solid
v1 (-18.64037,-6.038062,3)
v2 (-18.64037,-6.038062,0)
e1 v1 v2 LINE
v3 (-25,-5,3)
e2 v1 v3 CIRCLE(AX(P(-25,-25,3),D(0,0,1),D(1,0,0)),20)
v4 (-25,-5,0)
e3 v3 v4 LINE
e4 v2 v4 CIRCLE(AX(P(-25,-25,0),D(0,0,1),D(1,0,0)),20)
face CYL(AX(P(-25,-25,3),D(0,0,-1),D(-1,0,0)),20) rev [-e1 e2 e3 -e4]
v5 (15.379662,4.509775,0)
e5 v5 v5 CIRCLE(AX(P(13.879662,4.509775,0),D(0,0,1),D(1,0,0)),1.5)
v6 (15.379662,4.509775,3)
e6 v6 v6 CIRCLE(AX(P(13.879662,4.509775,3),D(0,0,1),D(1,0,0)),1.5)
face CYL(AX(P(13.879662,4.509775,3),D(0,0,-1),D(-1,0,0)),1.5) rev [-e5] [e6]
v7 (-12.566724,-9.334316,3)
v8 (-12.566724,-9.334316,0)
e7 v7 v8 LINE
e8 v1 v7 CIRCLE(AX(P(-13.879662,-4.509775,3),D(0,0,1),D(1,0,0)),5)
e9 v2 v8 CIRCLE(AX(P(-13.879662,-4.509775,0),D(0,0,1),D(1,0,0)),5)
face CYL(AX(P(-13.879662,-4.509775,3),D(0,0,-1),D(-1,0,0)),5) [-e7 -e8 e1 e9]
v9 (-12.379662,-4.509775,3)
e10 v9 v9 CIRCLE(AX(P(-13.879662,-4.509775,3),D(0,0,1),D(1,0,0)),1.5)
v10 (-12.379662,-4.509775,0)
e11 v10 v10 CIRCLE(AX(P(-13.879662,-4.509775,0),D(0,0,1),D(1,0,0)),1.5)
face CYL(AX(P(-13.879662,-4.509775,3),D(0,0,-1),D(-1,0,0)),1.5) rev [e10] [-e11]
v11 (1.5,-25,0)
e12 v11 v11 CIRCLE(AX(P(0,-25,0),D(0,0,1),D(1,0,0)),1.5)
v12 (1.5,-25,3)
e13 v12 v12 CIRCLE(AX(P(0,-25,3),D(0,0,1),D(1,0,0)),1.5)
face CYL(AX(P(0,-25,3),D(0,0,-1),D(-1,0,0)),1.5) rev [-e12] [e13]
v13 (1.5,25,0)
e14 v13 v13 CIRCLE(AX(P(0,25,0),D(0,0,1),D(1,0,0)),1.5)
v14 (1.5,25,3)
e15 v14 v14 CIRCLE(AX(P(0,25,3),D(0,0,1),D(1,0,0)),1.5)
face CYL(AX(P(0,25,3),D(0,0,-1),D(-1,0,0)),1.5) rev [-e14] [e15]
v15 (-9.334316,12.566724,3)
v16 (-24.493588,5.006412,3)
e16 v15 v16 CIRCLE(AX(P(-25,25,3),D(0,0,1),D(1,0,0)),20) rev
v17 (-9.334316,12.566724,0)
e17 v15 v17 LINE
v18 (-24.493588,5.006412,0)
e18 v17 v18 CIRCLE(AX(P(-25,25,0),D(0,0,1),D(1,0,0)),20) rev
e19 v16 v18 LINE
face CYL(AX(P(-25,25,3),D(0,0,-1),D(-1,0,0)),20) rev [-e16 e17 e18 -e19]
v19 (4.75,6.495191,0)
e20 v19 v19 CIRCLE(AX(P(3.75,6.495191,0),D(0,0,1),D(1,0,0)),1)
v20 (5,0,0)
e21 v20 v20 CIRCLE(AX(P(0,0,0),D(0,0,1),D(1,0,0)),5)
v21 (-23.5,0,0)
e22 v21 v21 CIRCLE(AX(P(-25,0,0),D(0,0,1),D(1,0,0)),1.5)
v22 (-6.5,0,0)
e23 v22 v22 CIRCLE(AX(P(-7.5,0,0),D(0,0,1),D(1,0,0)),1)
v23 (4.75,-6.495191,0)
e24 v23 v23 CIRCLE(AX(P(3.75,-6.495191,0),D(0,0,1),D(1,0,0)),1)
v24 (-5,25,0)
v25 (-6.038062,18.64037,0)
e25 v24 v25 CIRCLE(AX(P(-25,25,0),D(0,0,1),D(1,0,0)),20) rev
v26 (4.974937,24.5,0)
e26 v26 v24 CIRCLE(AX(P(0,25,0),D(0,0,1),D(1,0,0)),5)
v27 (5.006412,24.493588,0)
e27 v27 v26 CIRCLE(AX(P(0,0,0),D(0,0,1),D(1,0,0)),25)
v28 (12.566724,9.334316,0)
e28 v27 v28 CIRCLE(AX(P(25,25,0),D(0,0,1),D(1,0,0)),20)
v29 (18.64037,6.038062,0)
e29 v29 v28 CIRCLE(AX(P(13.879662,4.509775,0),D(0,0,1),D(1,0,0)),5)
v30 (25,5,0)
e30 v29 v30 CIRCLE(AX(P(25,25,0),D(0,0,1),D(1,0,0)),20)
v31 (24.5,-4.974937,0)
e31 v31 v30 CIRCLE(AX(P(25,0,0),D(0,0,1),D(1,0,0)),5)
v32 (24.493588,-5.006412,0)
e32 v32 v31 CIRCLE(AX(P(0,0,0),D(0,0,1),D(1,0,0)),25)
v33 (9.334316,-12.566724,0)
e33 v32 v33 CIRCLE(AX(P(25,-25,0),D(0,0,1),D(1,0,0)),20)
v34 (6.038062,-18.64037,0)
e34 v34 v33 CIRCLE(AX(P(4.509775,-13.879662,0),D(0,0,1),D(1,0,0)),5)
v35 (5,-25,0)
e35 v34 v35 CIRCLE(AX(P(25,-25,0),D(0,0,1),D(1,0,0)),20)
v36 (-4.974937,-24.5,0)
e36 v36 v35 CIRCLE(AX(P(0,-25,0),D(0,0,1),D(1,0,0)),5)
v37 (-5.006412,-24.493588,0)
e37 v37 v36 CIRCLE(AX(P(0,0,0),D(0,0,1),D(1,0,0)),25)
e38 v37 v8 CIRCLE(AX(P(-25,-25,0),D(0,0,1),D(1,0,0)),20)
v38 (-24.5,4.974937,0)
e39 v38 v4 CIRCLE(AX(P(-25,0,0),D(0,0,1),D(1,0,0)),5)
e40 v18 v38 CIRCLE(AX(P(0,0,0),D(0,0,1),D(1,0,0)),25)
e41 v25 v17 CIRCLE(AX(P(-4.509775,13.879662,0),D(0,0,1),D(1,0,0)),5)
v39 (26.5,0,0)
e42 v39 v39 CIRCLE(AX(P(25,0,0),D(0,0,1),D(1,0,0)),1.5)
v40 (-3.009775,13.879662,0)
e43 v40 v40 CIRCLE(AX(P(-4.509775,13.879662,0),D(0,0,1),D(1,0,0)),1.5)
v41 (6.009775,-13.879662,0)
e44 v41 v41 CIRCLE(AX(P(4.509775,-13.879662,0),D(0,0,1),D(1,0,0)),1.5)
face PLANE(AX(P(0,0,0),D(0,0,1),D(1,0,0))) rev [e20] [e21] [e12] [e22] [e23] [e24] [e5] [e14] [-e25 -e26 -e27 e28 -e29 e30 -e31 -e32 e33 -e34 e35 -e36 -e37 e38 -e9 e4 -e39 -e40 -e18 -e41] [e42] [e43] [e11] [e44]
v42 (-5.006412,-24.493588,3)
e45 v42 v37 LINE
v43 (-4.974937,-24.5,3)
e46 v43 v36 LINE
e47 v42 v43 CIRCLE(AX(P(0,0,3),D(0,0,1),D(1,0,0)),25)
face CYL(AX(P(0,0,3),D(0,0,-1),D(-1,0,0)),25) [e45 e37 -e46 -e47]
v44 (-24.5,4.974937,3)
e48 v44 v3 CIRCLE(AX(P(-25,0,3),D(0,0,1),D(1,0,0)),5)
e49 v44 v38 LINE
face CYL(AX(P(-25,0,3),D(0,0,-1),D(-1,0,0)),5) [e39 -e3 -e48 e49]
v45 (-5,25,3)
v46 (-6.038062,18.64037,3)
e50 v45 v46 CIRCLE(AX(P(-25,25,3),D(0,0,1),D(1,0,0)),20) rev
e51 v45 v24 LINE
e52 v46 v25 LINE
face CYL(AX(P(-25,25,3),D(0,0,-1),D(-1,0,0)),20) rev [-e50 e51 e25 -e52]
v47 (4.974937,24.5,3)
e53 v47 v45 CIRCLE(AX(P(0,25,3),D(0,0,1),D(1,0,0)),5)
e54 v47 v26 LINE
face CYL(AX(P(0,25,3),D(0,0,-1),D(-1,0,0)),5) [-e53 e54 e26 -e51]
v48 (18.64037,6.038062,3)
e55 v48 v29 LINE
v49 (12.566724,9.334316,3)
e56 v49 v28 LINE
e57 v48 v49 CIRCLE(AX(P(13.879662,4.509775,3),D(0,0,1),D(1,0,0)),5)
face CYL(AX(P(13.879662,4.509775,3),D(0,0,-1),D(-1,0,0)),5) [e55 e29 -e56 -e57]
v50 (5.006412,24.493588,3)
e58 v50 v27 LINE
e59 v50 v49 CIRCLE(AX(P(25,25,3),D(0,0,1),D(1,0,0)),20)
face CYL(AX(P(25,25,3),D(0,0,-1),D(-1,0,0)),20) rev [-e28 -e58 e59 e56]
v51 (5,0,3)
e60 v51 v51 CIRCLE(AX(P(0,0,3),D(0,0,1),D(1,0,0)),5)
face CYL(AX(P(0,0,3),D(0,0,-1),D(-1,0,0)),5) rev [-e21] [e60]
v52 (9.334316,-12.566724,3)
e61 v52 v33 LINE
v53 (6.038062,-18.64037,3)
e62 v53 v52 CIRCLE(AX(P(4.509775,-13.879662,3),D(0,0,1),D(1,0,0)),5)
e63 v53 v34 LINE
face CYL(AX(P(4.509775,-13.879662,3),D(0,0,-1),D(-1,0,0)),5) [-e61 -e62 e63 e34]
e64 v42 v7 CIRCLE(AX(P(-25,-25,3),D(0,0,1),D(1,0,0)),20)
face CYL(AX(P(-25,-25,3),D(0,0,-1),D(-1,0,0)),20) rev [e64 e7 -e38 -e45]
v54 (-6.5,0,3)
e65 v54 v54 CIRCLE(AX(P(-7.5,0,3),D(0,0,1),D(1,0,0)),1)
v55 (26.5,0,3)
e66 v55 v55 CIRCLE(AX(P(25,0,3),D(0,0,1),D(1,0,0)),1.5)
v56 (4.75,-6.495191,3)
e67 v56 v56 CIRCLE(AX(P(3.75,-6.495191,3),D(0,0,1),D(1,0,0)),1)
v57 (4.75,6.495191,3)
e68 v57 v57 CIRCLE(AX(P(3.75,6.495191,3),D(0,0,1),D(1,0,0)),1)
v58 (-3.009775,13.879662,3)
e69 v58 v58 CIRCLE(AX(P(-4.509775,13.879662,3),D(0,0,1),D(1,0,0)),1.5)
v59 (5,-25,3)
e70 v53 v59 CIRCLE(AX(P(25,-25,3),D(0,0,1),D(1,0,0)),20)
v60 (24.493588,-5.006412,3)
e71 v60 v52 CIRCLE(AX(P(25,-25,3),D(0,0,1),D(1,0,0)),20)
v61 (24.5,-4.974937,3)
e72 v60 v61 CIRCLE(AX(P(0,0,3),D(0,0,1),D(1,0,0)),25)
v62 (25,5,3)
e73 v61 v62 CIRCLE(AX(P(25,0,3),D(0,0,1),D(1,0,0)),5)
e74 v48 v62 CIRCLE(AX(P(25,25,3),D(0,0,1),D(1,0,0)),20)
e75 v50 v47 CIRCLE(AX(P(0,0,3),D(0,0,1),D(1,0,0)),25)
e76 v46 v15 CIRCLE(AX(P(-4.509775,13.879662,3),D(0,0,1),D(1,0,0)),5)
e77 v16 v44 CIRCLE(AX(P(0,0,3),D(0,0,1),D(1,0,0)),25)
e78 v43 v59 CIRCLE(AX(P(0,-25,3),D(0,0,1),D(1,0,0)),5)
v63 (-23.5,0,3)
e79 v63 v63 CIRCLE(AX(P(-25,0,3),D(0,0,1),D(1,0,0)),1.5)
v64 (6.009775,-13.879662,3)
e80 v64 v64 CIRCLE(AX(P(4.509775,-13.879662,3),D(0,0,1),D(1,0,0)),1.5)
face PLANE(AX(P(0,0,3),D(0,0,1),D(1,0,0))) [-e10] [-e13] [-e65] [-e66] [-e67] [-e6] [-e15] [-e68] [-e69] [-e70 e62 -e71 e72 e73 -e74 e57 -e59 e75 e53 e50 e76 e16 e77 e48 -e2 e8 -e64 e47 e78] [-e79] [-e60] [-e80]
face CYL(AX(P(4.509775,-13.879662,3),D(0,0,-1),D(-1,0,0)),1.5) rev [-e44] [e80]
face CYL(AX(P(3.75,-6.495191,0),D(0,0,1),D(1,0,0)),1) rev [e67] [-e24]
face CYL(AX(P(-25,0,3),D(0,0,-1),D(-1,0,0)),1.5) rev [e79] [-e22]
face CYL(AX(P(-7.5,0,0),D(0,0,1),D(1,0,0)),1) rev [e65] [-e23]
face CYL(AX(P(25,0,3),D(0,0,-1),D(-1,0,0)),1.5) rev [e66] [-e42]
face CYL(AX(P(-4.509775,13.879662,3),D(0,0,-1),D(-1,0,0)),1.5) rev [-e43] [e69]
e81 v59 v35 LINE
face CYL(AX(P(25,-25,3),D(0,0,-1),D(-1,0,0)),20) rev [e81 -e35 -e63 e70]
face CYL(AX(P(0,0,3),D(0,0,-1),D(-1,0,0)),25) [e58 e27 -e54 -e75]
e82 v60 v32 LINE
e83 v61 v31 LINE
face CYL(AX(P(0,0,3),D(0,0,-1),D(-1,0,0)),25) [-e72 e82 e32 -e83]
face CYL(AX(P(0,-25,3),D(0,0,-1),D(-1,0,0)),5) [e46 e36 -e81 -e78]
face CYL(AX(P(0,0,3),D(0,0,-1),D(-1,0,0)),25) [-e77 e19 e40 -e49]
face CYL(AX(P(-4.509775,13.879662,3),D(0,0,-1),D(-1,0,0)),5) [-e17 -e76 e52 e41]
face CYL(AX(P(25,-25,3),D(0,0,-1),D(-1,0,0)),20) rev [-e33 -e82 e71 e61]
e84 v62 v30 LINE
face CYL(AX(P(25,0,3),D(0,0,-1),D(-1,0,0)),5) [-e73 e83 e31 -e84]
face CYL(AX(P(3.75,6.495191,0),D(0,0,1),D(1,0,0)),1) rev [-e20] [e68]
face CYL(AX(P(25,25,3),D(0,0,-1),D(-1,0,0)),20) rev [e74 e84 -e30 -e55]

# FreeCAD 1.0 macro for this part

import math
import FreeCAD as App
import Part
import Sketcher
Q = App.Units.Quantity

doc = App.newDocument("Part")
params = doc.addObject("Spreadsheet::Sheet", "Params")
for row, (alias, value) in enumerate([
    ("sketch1_diameter", "3 mm"),
    ("sketch1_diameter2", "10 mm"),
    ("sketch1_radius", "20 mm"),
    ("pad1_length", "3 mm"),
    ("sketch2_diameter", "2 mm"),
], start=1):
    params.set(f"A{row}", alias)
    params.set(f"B{row}", "=" + value)
    params.setAlias(f"B{row}", alias)

body = doc.addObject("PartDesign::Body", "Body")

# Sketch on XY plane
sketch1 = body.newObject("Sketcher::SketchObject", "Sketch")
sketch1.AttachmentSupport = (doc.getObject("XY_Plane"), [""])
sketch1.MapMode = "FlatFace"
sketch1.addGeometry(Part.ArcOfCircle(Part.Circle(App.Vector(0, -0.001, 0), App.Vector(0, 0, 1), 24.999), math.radians(-101.55), math.radians(-101.48)), False)
sketch1.addGeometry(Part.ArcOfCircle(Part.Circle(App.Vector(0, -25, 0), App.Vector(0, 0, 1), 5), math.radians(174), math.radians(360)), False)
sketch1.addGeometry(Part.ArcOfCircle(Part.Circle(App.Vector(25, -25, 0), App.Vector(0, 0, 1), 20), math.radians(161.46), math.radians(180)), False)
sketch1.addGeometry(Part.ArcOfCircle(Part.Circle(App.Vector(4.51, -13.88, 0), App.Vector(0, 0, 1), 5), math.radians(-72), math.radians(15)), False)
sketch1.addGeometry(Part.ArcOfCircle(Part.Circle(App.Vector(25, -25, 0), App.Vector(0, 0, 1), 20), math.radians(91), math.radians(142)), False)
sketch1.addGeometry(Part.ArcOfCircle(Part.Circle(App.Vector(0.001, 0, 0), App.Vector(0, 0, 1), 24.999), math.radians(-11.55), math.radians(-11.48)), False)
sketch1.addGeometry(Part.ArcOfCircle(Part.Circle(App.Vector(25, 0, 0), App.Vector(0, 0, 1), 5), math.radians(-96), math.radians(90)), False)
sketch1.addGeometry(Part.ArcOfCircle(Part.Circle(App.Vector(25, 25, 0), App.Vector(0, 0, 1), 20), math.radians(-108.54), math.radians(-90)), False)
sketch1.addGeometry(Part.ArcOfCircle(Part.Circle(App.Vector(13.88, 4.51, 0), App.Vector(0, 0, 1), 5), math.radians(18), math.radians(105)), False)
sketch1.addGeometry(Part.ArcOfCircle(Part.Circle(App.Vector(25, 25, 0), App.Vector(0, 0, 1), 20), math.radians(-179), math.radians(-128)), False)
sketch1.addGeometry(Part.ArcOfCircle(Part.Circle(App.Vector(0, 0.001, 0), App.Vector(0, 0, 1), 24.999), math.radians(78.45), math.radians(78.52)), False)
sketch1.addGeometry(Part.ArcOfCircle(Part.Circle(App.Vector(0, 25, 0), App.Vector(0, 0, 1), 5), math.radians(-6), math.radians(180)), False)
sketch1.addGeometry(Part.ArcOfCircle(Part.Circle(App.Vector(-25, 25, 0), App.Vector(0, 0, 1), 20), math.radians(-18.54), math.radians(0)), False)
sketch1.addGeometry(Part.ArcOfCircle(Part.Circle(App.Vector(-4.51, 13.88, 0), App.Vector(0, 0, 1), 5), math.radians(108), math.radians(195)), False)
sketch1.addGeometry(Part.ArcOfCircle(Part.Circle(App.Vector(-25, 25, 0), App.Vector(0, 0, 1), 20), math.radians(-89), math.radians(-38)), False)
sketch1.addGeometry(Part.ArcOfCircle(Part.Circle(App.Vector(-0.001, 0, 0), App.Vector(0, 0, 1), 24.999), math.radians(168.45), math.radians(168.52)), False)
sketch1.addGeometry(Part.ArcOfCircle(Part.Circle(App.Vector(-25, 0, 0), App.Vector(0, 0, 1), 5), math.radians(84), math.radians(270)), False)
sketch1.addGeometry(Part.ArcOfCircle(Part.Circle(App.Vector(-25, -25, 0), App.Vector(0, 0, 1), 20), math.radians(71.46), math.radians(90)), False)
sketch1.addGeometry(Part.ArcOfCircle(Part.Circle(App.Vector(-13.88, -4.51, 0), App.Vector(0, 0, 1), 5), math.radians(-162), math.radians(-75)), False)
sketch1.addGeometry(Part.ArcOfCircle(Part.Circle(App.Vector(-25, -25, 0), App.Vector(0, 0, 1), 20), math.radians(1), math.radians(52)), False)
sketch1.addGeometry(Part.Circle(App.Vector(-13.88, -4.51, 0), App.Vector(0, 0, 1), 1.5), False)
sketch1.addGeometry(Part.Circle(App.Vector(0, -25, 0), App.Vector(0, 0, 1), 1.5), False)
sketch1.addGeometry(Part.Circle(App.Vector(4.51, -13.88, 0), App.Vector(0, 0, 1), 1.5), False)
sketch1.addGeometry(Part.Circle(App.Vector(-25, 0, 0), App.Vector(0, 0, 1), 1.5), False)
sketch1.addGeometry(Part.Circle(App.Vector(-4.51, 13.88, 0), App.Vector(0, 0, 1), 1.5), False)
sketch1.addGeometry(Part.Circle(App.Vector(0, 0, 0), App.Vector(0, 0, 1), 5), False)
sketch1.addGeometry(Part.Circle(App.Vector(13.88, 4.51, 0), App.Vector(0, 0, 1), 1.5), False)
sketch1.addGeometry(Part.Circle(App.Vector(25, 0, 0), App.Vector(0, 0, 1), 1.5), False)
sketch1.addGeometry(Part.Circle(App.Vector(0, 25, 0), App.Vector(0, 0, 1), 1.5), False)
sketch1.addConstraint(Sketcher.Constraint("Coincident", 0, 2, 1, 1))
sketch1.addConstraint(Sketcher.Constraint("Tangent", 1, 2, 2, 2))
sketch1.addConstraint(Sketcher.Constraint("Coincident", 2, 1, 3, 1))
sketch1.addConstraint(Sketcher.Constraint("Coincident", 3, 2, 4, 2))
sketch1.addConstraint(Sketcher.Constraint("Coincident", 4, 1, 5, 1))
sketch1.addConstraint(Sketcher.Constraint("Coincident", 5, 2, 6, 1))
sketch1.addConstraint(Sketcher.Constraint("Tangent", 6, 2, 7, 2))
sketch1.addConstraint(Sketcher.Constraint("Coincident", 7, 1, 8, 1))
sketch1.addConstraint(Sketcher.Constraint("Coincident", 8, 2, 9, 2))
sketch1.addConstraint(Sketcher.Constraint("Coincident", 9, 1, 10, 1))
sketch1.addConstraint(Sketcher.Constraint("Coincident", 10, 2, 11, 1))
sketch1.addConstraint(Sketcher.Constraint("Tangent", 11, 2, 12, 2))
sketch1.addConstraint(Sketcher.Constraint("Coincident", 12, 1, 13, 1))
sketch1.addConstraint(Sketcher.Constraint("Coincident", 13, 2, 14, 2))
sketch1.addConstraint(Sketcher.Constraint("Coincident", 14, 1, 15, 1))
sketch1.addConstraint(Sketcher.Constraint("Coincident", 15, 2, 16, 1))
sketch1.addConstraint(Sketcher.Constraint("Tangent", 16, 2, 17, 2))
sketch1.addConstraint(Sketcher.Constraint("Coincident", 17, 1, 18, 1))
sketch1.addConstraint(Sketcher.Constraint("Coincident", 18, 2, 19, 2))
sketch1.addConstraint(Sketcher.Constraint("Coincident", 19, 1, 0, 1))
sketch1.addConstraint(Sketcher.Constraint("Coincident", 25, 3, -1, 1))
sketch1.addConstraint(Sketcher.Constraint("Coincident", 4, 3, 2, 3))
sketch1.addConstraint(Sketcher.Constraint("Coincident", 9, 3, 7, 3))
sketch1.addConstraint(Sketcher.Constraint("Coincident", 14, 3, 12, 3))
sketch1.addConstraint(Sketcher.Constraint("Coincident", 19, 3, 17, 3))
sketch1.addConstraint(Sketcher.Constraint("Coincident", 20, 3, 18, 3))
sketch1.addConstraint(Sketcher.Constraint("Coincident", 21, 3, 1, 3))
sketch1.addConstraint(Sketcher.Constraint("Coincident", 22, 3, 3, 3))
sketch1.addConstraint(Sketcher.Constraint("Coincident", 23, 3, 16, 3))
sketch1.addConstraint(Sketcher.Constraint("Coincident", 24, 3, 13, 3))
sketch1.addConstraint(Sketcher.Constraint("Coincident", 26, 3, 8, 3))
sketch1.addConstraint(Sketcher.Constraint("Coincident", 27, 3, 6, 3))
sketch1.addConstraint(Sketcher.Constraint("Coincident", 28, 3, 11, 3))
sketch1.addConstraint(Sketcher.Constraint("Equal", 1, 3))
sketch1.addConstraint(Sketcher.Constraint("Equal", 2, 4))
sketch1.addConstraint(Sketcher.Constraint("Equal", 0, 5))
sketch1.addConstraint(Sketcher.Constraint("Equal", 3, 6))
sketch1.addConstraint(Sketcher.Constraint("Equal", 4, 7))
sketch1.addConstraint(Sketcher.Constraint("Equal", 6, 8))
sketch1.addConstraint(Sketcher.Constraint("Equal", 7, 9))
sketch1.addConstraint(Sketcher.Constraint("Equal", 5, 10))
sketch1.addConstraint(Sketcher.Constraint("Equal", 8, 11))
sketch1.addConstraint(Sketcher.Constraint("Equal", 9, 12))
sketch1.addConstraint(Sketcher.Constraint("Equal", 11, 13))
sketch1.addConstraint(Sketcher.Constraint("Equal", 12, 14))
sketch1.addConstraint(Sketcher.Constraint("Equal", 10, 15))
sketch1.addConstraint(Sketcher.Constraint("Equal", 13, 16))
sketch1.addConstraint(Sketcher.Constraint("Equal", 14, 17))
sketch1.addConstraint(Sketcher.Constraint("Equal", 16, 18))
sketch1.addConstraint(Sketcher.Constraint("Equal", 17, 19))
sketch1.addConstraint(Sketcher.Constraint("Equal", 20, 21))
sketch1.addConstraint(Sketcher.Constraint("Equal", 21, 22))
sketch1.addConstraint(Sketcher.Constraint("Equal", 22, 23))
sketch1.addConstraint(Sketcher.Constraint("Equal", 23, 24))
sketch1.addConstraint(Sketcher.Constraint("Equal", 18, 25))
sketch1.addConstraint(Sketcher.Constraint("Equal", 24, 26))
sketch1.addConstraint(Sketcher.Constraint("Equal", 26, 27))
sketch1.addConstraint(Sketcher.Constraint("Equal", 27, 28))
sketch1.addConstraint(Sketcher.Constraint("Symmetric", 0, 3, 10, 3, -1, 1))
sketch1.addConstraint(Sketcher.Constraint("Symmetric", 1, 3, 11, 3, -1, 1))
sketch1.addConstraint(Sketcher.Constraint("Symmetric", 3, 3, 13, 3, -1, 1))
sketch1.addConstraint(Sketcher.Constraint("Symmetric", 5, 3, 15, 3, -1, 1))
sketch1.addConstraint(Sketcher.Constraint("Symmetric", 6, 3, 16, 3, -1, 1))
sketch1.addConstraint(Sketcher.Constraint("Symmetric", 8, 3, 18, 3, -1, 1))
sketch1.addConstraint(Sketcher.Constraint("Symmetric", 7, 3, 12, 3, -2))
sketch1.addConstraint(Sketcher.Constraint("Symmetric", 2, 3, 17, 3, -2))
sketch1.addConstraint(Sketcher.Constraint("PointOnObject", 1, 3, -2))
sketch1.addConstraint(Sketcher.Constraint("PointOnObject", 6, 3, -1))
sketch1.addConstraint(Sketcher.Constraint("Horizontal", 1, 3, 2, 3))
sketch1.addConstraint(Sketcher.Constraint("Vertical", 4, 3, 6, 3))
sketch1.addConstraint(Sketcher.Constraint("Diameter", 20, Q("3 mm")))
sketch1.addConstraint(Sketcher.Constraint("Diameter", 25, Q("10 mm")))
sketch1.addConstraint(Sketcher.Constraint("Radius", 2, Q("20 mm")))
sketch1.addConstraint(Sketcher.Constraint("DistanceY", 0, 2, -1, 1, Q("24.5 mm")))
sketch1.addConstraint(Sketcher.Constraint("DistanceX", -1, 1, 5, 2, Q("24.5 mm")))
sketch1.addConstraint(Sketcher.Constraint("DistanceX", 0, 3, 3, 3, Q("4.509999 mm")))
sketch1.addConstraint(Sketcher.Constraint("DistanceY", 5, 3, 8, 3, Q("4.509999 mm")))
sketch1.addConstraint(Sketcher.Constraint("Radius", 0, Q("24.998878 mm")))
sketch1.addConstraint(Sketcher.Constraint("DistanceY", 0, 3, -1, 1, Q("0.0011 mm")))
sketch1.addConstraint(Sketcher.Constraint("DistanceX", -1, 1, 5, 3, Q("0.0011 mm")))
sketch1.addConstraint(Sketcher.Constraint("DistanceY", 3, 3, -1, 1, Q("13.879662 mm")))
sketch1.addConstraint(Sketcher.Constraint("DistanceX", -1, 1, 8, 3, Q("13.879662 mm")))
sketch1.setExpression("Constraints[70]", "Params.sketch1_diameter")
sketch1.setExpression("Constraints[71]", "Params.sketch1_diameter2")
sketch1.setExpression("Constraints[72]", "Params.sketch1_radius")
pad1 = body.newObject("PartDesign::Pad", "Pad")
pad1.Profile = sketch1
pad1.setExpression("Length", "Params.pad1_length")

# Sketch on XY plane
sketch2 = body.newObject("Sketcher::SketchObject", "Sketch001")
sketch2.AttachmentSupport = (doc.getObject("XY_Plane"), [""])
sketch2.MapMode = "FlatFace"
sketch2.AttachmentOffset = App.Placement(App.Vector(0, 0, 3), App.Rotation())
sketch2.addGeometry(Part.Circle(App.Vector(3.8, 6.5, 0), App.Vector(0, 0, 1), 1), False)
sketch2.addGeometry(Part.Circle(App.Vector(3.8, -6.5, 0), App.Vector(0, 0, 1), 1), False)
sketch2.addGeometry(Part.Circle(App.Vector(-7.5, 0, 0), App.Vector(0, 0, 1), 1), False)
sketch2.addConstraint(Sketcher.Constraint("Equal", 0, 1))
sketch2.addConstraint(Sketcher.Constraint("Equal", 1, 2))
sketch2.addConstraint(Sketcher.Constraint("Symmetric", 0, 3, 1, 3, -1))
sketch2.addConstraint(Sketcher.Constraint("PointOnObject", 2, 3, -1))
sketch2.addConstraint(Sketcher.Constraint("Diameter", 0, Q("2 mm")))
sketch2.addConstraint(Sketcher.Constraint("DistanceX", 2, 3, -1, 1, Q("7.5 mm")))
sketch2.addConstraint(Sketcher.Constraint("DistanceX", -1, 1, 0, 3, Q("3.75 mm")))
sketch2.addConstraint(Sketcher.Constraint("DistanceY", -1, 1, 0, 3, Q("6.495191 mm")))
sketch2.setExpression("Constraints[4]", "Params.sketch2_diameter")
pocket1 = body.newObject("PartDesign::Pocket", "Pocket")
pocket1.Profile = sketch2
pocket1.Type = "ThroughAll"

doc.recompute()
